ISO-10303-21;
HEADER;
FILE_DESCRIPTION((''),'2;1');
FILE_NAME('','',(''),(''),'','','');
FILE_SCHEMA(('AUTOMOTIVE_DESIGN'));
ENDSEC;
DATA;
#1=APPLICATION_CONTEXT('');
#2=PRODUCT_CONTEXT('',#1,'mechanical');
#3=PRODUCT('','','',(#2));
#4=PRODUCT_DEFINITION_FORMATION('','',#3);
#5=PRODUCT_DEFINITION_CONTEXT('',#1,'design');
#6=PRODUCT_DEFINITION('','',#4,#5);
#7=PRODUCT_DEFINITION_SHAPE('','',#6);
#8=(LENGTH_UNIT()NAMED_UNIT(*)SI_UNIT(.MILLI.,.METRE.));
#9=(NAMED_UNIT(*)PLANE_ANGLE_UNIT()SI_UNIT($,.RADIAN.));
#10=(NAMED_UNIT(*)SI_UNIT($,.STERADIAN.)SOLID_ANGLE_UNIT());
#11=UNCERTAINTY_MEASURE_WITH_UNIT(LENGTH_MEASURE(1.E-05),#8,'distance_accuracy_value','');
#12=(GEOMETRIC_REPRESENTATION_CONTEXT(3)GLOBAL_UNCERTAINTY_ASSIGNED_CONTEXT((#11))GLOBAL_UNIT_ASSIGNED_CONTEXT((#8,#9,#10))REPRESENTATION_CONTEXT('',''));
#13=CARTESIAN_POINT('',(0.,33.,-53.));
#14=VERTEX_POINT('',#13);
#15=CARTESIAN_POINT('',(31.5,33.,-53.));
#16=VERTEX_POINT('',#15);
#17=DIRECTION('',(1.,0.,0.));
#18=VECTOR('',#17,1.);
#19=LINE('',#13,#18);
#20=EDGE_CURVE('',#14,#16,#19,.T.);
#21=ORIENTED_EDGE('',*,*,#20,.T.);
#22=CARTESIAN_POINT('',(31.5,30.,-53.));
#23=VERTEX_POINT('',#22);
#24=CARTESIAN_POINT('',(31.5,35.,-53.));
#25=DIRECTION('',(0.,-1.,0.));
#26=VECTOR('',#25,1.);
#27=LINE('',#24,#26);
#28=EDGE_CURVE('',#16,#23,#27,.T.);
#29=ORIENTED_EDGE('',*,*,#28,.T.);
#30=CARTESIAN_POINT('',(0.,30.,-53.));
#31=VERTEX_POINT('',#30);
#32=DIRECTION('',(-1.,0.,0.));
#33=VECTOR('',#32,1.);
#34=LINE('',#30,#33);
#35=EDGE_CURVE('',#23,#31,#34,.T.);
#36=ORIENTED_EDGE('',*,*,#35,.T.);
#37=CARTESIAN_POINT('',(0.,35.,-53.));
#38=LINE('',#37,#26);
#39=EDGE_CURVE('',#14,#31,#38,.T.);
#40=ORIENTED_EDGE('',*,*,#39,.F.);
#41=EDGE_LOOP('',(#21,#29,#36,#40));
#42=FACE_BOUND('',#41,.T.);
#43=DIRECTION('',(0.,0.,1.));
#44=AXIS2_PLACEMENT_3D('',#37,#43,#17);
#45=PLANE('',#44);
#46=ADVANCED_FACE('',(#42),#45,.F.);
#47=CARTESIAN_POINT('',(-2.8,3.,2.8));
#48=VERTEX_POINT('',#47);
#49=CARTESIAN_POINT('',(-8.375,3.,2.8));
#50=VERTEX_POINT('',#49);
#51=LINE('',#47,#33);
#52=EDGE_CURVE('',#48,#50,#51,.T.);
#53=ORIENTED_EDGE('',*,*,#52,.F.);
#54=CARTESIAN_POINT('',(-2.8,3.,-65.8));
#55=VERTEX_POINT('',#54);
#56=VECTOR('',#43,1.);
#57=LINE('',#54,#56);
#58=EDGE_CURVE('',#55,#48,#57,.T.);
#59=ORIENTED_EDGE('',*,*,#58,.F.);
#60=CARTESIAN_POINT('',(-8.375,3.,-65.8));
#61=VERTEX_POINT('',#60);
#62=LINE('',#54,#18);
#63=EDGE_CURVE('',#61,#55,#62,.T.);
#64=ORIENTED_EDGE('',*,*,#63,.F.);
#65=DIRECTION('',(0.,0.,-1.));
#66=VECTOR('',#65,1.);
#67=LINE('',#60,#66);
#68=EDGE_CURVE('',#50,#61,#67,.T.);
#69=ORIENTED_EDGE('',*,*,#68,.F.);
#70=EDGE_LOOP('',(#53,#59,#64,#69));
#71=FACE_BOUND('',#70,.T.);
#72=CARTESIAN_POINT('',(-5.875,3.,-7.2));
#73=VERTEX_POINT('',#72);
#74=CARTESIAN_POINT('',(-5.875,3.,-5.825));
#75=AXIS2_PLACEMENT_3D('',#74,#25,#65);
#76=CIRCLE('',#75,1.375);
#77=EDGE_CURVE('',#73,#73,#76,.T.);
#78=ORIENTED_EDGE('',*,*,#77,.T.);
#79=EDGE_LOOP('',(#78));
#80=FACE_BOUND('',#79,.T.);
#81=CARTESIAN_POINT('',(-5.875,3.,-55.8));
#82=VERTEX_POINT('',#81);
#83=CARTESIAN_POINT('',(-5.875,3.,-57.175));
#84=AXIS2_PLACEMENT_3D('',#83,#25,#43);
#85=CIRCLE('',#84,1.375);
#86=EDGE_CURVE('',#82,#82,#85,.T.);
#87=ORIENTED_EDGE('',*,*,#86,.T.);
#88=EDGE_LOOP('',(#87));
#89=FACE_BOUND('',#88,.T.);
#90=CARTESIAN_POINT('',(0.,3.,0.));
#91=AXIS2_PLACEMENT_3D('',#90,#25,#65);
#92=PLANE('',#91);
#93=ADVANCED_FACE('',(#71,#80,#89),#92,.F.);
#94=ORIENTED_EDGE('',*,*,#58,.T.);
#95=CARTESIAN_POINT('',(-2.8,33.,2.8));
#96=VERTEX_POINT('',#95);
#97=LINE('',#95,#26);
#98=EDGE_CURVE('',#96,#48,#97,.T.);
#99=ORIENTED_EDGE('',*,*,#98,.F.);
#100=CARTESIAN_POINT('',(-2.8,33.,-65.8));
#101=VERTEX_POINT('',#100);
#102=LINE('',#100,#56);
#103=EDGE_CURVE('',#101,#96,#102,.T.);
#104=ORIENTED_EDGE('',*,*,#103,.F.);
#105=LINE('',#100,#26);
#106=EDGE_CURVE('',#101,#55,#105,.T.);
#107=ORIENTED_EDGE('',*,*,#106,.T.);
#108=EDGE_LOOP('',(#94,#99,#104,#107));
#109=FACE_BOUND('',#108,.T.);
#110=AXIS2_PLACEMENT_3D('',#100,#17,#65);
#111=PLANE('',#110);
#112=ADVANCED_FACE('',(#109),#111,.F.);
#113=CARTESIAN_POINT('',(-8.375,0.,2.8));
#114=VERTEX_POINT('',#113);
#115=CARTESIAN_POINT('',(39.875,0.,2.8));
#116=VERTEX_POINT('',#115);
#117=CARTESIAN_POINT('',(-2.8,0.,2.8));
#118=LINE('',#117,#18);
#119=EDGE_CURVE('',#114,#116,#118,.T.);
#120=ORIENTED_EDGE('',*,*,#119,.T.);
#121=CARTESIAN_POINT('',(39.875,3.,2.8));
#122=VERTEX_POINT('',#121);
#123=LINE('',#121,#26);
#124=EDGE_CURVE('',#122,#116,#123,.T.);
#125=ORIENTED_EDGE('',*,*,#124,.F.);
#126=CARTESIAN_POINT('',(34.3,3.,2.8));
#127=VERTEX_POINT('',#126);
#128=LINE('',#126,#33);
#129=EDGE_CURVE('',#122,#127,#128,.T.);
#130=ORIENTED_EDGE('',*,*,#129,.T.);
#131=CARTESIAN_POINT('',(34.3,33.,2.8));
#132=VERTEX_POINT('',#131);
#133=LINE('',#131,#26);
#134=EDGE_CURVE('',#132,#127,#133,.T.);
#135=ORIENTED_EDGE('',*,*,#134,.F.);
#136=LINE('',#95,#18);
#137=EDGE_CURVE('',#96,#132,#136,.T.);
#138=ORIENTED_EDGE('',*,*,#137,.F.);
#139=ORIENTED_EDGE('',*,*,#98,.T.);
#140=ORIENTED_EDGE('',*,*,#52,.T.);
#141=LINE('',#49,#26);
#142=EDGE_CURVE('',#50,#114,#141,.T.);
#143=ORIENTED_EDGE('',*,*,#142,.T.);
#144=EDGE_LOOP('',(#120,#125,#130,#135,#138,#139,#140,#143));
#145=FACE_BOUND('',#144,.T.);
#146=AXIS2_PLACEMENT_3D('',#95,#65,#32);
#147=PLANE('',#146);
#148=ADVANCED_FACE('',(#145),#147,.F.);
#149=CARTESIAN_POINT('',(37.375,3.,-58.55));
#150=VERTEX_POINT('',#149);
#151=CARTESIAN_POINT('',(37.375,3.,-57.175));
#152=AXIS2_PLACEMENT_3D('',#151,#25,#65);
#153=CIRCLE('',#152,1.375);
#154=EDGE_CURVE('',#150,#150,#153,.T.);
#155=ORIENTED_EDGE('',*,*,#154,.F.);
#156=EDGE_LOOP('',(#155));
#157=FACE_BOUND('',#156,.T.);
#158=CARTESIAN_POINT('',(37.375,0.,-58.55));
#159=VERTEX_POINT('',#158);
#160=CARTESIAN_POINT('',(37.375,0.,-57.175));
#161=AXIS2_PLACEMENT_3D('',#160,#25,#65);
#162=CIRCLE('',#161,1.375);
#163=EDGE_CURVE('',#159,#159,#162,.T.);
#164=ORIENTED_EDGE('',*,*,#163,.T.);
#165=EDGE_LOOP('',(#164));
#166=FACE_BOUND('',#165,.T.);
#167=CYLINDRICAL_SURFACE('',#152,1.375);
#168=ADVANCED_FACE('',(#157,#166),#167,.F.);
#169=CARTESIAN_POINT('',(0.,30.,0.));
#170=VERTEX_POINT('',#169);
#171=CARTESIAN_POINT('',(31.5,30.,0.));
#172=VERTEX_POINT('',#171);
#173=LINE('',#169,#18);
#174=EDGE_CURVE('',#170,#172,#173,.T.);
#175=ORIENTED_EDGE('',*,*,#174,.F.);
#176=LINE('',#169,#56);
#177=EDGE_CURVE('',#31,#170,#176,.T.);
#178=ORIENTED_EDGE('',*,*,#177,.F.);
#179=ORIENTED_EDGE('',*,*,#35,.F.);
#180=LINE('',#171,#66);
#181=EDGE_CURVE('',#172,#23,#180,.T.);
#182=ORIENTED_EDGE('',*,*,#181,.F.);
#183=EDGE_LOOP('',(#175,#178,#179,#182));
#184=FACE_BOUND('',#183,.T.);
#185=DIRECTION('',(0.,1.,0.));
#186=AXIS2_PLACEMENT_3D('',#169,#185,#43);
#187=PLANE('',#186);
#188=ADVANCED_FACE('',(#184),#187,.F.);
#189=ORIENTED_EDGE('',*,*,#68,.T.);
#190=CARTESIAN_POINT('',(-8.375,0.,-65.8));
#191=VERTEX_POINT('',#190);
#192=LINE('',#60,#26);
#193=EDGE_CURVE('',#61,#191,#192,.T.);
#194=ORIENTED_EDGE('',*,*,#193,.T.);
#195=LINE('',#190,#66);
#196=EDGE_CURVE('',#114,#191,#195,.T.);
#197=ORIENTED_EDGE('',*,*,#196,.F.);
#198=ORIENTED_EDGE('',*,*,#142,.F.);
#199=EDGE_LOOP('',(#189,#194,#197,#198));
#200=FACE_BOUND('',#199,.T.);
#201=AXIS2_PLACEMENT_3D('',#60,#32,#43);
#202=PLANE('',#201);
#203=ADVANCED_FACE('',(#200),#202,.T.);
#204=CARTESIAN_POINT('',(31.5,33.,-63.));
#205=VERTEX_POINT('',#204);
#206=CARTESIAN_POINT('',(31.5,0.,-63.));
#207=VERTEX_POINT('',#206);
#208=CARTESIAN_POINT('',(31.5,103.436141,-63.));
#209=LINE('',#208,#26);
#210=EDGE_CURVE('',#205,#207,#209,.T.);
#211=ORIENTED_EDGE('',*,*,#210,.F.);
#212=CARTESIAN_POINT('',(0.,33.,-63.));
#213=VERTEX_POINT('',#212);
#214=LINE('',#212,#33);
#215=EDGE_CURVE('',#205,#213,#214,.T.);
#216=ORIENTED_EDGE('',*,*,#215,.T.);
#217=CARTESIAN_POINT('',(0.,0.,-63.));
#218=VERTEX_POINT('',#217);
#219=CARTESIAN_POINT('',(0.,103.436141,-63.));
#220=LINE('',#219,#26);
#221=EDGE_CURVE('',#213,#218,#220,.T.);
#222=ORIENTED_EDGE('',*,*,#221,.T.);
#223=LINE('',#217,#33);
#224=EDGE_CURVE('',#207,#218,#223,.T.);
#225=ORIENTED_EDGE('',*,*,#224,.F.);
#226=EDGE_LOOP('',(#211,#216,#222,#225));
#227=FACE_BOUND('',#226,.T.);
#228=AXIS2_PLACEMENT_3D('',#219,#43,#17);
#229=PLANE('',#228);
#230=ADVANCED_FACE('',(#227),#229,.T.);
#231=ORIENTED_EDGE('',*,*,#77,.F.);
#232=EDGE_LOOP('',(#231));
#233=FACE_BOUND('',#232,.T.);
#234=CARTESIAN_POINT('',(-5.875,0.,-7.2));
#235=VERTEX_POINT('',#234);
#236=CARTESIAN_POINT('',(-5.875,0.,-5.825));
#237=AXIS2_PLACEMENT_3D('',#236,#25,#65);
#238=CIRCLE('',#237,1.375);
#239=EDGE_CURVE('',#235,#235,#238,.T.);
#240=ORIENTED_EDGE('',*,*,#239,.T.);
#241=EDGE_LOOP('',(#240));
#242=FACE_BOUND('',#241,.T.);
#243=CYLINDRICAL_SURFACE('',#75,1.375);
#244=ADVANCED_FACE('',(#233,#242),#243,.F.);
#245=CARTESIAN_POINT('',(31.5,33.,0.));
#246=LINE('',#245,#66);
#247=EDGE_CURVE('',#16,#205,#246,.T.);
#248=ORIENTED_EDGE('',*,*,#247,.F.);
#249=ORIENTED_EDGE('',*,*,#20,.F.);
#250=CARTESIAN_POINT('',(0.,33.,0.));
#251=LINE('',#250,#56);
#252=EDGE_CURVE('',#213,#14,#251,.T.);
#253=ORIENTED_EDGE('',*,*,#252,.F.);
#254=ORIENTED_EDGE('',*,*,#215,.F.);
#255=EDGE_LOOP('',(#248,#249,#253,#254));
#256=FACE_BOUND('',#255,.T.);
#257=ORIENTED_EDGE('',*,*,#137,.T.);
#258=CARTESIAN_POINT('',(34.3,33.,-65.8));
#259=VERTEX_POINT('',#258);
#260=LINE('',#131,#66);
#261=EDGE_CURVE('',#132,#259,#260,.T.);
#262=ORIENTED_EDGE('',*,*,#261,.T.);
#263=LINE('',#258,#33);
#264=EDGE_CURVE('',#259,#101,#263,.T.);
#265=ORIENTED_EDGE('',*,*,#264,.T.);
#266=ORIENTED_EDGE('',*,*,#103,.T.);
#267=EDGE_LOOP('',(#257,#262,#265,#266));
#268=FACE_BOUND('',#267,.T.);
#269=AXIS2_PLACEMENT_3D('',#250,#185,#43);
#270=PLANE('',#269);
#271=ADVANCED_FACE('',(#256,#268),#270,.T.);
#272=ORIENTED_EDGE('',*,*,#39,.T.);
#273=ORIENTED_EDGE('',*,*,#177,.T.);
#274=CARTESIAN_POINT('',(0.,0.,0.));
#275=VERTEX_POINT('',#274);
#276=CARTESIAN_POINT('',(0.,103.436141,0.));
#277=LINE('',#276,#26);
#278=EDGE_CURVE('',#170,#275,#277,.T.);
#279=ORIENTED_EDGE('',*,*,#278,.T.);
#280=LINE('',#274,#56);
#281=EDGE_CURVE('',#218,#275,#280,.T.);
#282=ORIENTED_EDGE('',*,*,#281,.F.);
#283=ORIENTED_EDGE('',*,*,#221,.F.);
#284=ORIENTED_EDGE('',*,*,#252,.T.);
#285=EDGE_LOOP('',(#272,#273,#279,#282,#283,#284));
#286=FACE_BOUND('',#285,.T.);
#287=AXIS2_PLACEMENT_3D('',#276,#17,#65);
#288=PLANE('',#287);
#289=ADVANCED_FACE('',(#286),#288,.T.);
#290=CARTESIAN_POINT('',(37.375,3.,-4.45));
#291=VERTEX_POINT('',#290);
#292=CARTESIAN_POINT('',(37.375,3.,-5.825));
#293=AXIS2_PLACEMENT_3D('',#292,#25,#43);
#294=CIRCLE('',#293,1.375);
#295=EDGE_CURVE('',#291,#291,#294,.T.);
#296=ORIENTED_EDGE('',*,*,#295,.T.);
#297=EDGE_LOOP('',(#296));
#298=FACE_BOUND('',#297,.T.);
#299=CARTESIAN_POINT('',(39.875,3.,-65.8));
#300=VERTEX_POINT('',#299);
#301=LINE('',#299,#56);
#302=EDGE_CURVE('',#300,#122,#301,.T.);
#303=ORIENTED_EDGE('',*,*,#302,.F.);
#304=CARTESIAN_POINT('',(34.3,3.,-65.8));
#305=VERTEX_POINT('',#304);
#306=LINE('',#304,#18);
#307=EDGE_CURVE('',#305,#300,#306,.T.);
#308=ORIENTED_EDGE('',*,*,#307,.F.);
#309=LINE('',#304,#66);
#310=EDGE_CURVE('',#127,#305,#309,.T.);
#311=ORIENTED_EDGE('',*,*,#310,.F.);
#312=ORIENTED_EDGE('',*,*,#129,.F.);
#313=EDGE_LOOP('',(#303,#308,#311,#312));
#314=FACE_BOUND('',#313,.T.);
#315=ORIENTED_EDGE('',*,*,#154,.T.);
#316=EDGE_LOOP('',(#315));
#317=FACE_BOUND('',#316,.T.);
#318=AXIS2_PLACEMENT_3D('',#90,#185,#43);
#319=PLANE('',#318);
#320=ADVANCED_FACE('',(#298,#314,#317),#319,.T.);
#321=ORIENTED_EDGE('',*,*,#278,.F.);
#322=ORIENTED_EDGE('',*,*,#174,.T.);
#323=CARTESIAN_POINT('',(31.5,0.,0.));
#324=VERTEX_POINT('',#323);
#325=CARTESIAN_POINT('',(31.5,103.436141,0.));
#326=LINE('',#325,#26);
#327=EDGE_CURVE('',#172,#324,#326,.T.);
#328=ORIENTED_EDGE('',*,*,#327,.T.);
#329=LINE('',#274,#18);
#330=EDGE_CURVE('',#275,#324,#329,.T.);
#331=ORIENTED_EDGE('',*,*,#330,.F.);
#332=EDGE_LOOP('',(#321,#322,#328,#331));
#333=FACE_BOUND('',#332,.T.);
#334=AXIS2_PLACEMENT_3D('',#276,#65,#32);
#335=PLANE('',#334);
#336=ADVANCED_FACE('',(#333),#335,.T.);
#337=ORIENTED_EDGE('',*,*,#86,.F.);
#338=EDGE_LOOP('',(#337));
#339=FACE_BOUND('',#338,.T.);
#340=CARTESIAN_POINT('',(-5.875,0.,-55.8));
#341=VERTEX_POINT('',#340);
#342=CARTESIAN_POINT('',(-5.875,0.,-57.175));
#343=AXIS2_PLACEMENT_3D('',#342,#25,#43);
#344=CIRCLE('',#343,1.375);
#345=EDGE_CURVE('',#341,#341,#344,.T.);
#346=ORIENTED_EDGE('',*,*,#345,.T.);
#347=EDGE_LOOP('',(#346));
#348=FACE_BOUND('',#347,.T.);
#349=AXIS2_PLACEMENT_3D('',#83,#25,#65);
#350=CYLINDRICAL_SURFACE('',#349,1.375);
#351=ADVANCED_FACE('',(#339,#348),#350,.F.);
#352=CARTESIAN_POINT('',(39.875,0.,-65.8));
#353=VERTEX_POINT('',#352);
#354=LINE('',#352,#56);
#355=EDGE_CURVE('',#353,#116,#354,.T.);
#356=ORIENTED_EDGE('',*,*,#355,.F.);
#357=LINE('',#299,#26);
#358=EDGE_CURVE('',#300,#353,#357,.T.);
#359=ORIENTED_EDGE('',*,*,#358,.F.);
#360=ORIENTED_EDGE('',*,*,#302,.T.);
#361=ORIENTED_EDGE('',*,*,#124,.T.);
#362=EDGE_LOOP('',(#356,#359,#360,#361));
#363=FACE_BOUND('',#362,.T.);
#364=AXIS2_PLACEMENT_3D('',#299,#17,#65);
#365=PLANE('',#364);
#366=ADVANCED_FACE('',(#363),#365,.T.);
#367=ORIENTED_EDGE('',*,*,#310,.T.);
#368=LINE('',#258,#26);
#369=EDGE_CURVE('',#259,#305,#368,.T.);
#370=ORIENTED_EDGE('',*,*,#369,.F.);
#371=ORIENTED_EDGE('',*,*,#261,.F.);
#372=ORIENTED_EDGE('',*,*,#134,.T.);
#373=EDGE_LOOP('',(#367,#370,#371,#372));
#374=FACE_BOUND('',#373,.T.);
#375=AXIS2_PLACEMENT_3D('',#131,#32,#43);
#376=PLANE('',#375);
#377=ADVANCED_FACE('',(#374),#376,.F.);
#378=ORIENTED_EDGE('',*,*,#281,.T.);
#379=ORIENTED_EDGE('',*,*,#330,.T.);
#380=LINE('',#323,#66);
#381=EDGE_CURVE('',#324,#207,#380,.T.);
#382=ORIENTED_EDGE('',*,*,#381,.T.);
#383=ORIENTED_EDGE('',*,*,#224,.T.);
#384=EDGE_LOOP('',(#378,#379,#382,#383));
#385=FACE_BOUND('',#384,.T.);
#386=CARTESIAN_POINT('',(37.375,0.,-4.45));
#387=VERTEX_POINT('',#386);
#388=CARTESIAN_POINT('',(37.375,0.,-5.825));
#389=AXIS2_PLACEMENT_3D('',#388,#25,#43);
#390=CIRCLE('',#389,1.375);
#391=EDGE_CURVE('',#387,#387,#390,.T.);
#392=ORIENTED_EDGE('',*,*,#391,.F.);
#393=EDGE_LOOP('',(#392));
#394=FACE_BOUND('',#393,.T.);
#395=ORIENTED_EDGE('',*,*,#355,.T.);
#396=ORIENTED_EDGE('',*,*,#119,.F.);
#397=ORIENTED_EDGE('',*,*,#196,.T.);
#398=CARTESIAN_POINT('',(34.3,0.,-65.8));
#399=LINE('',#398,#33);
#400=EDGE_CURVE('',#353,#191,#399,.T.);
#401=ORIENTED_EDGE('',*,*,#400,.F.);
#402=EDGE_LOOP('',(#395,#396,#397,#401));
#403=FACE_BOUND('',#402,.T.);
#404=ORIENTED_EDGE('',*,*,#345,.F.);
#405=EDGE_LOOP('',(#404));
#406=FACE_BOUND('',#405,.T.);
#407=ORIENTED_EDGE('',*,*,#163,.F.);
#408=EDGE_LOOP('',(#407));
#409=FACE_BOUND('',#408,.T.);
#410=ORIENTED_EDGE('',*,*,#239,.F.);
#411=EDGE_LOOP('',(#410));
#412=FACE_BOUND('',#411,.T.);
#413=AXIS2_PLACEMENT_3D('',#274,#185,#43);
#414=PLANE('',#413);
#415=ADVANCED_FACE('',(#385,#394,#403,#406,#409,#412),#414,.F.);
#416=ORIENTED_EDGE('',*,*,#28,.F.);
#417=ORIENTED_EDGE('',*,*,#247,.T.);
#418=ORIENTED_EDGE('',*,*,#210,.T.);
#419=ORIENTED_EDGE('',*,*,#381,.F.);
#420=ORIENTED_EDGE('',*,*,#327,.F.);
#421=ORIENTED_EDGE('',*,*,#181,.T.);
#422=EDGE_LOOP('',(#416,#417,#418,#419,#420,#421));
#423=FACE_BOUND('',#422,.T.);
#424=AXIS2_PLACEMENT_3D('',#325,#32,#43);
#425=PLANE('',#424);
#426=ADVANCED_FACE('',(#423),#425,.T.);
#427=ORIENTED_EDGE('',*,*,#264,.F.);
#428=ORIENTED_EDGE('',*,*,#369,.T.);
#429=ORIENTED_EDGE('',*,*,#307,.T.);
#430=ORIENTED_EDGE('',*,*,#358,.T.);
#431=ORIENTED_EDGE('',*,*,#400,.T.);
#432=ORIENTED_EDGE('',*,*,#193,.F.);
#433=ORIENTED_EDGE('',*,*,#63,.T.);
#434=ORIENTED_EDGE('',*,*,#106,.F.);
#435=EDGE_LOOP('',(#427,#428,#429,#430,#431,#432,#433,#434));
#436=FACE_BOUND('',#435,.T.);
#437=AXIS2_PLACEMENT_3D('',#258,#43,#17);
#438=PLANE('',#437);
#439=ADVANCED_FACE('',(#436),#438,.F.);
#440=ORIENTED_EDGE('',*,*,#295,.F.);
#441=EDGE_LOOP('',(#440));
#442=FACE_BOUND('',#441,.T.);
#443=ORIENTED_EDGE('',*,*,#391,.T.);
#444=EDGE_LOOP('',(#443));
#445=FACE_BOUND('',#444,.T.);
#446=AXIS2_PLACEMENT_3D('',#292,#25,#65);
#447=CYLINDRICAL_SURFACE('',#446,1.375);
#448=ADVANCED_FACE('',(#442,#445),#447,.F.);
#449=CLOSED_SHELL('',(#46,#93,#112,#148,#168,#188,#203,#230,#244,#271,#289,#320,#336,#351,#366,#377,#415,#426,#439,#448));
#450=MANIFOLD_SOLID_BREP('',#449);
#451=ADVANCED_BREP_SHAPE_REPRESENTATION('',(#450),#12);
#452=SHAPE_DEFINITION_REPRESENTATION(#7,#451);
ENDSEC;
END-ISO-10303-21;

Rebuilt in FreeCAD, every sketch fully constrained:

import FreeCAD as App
import Part
import Sketcher
from FreeCAD import Vector
Q = App.Units.Quantity


def add_polygon(sketch, points):
    """Adds a closed chain of lines whose ends are joined by coincident constraints."""
    first, n = sketch.GeometryCount, len(points)
    for a, b in zip(points, points[1:] + points[:1]):
        sketch.addGeometry(Part.LineSegment(App.Vector(*a, 0), App.Vector(*b, 0)), False)
    for i in range(n):
        sketch.addConstraint(Sketcher.Constraint("Coincident", first + i, 2, first + (i + 1) % n, 1))

doc = App.newDocument("Part")
body = doc.addObject("PartDesign::Body", "Body")

# Sketch on XZ plane
sketch1 = body.newObject("Sketcher::SketchObject", "Sketch")
sketch1.AttachmentSupport = (doc.getObject("XZ_Plane"), [""])
sketch1.MapMode = "FlatFace"
add_polygon(sketch1, [(-3, -66), (-3, 3), (34, 3), (34, -66)])  # lines 0-3
sketch1.addConstraint([
    Sketcher.Constraint("Vertical", 0),
    Sketcher.Constraint("Horizontal", 1),
    Sketcher.Constraint("Vertical", 2),
    Sketcher.Constraint("Horizontal", 3),
    Sketcher.Constraint("DistanceX", 1, 1, 1, 2, Q("37.1 mm")),
    Sketcher.Constraint("DistanceY", 0, 1, 0, 2, Q("68.6 mm")),
    Sketcher.Constraint("DistanceX", 0, 2, -1, 1, Q("2.8 mm")),
    Sketcher.Constraint("DistanceY", -1, 1, 0, 2, Q("2.8 mm")),
])
pad1 = body.newObject("PartDesign::Pad", "Pad")
pad1.Profile = sketch1
pad1.Length = 33
pad1.Reversed = True

# Sketch on XZ plane
sketch2 = body.newObject("Sketcher::SketchObject", "Sketch001")
sketch2.AttachmentSupport = (doc.getObject("XZ_Plane"), [""])
sketch2.MapMode = "FlatFace"
add_polygon(sketch2, [(0, -63), (0, 0), (32, 0), (32, -63)])  # lines 0-3
sketch2.addConstraint([
    Sketcher.Constraint("Vertical", 0),
    Sketcher.Constraint("Horizontal", 1),
    Sketcher.Constraint("Vertical", 2),
    Sketcher.Constraint("Horizontal", 3),
    Sketcher.Constraint("Coincident", 0, 2, -1, 1),
    Sketcher.Constraint("DistanceY", 0, 1, 0, 2, Q("63 mm")),
    Sketcher.Constraint("DistanceX", 1, 1, 1, 2, Q("31.5 mm")),
])
pocket1 = body.newObject("PartDesign::Pocket", "Pocket")
pocket1.Profile = sketch2
pocket1.Length = 30

# Sketch on XZ plane
sketch3 = body.newObject("Sketcher::SketchObject", "Sketch002")
sketch3.AttachmentSupport = (doc.getObject("XZ_Plane"), [""])
sketch3.MapMode = "FlatFace"
sketch3.AttachmentOffset = App.Placement(Vector(0, 0, -30), App.Rotation())
add_polygon(sketch3, [(0, -53), (0, -63), (32, -63), (32, -53)])  # lines 0-3
sketch3.addConstraint([
    Sketcher.Constraint("Vertical", 0),
    Sketcher.Constraint("Horizontal", 1),
    Sketcher.Constraint("Vertical", 2),
    Sketcher.Constraint("Horizontal", 3),
    Sketcher.Constraint("PointOnObject", 0, 2, -2),
    Sketcher.Constraint("DistanceY", 0, 2, 0, 1, Q("10 mm")),
    Sketcher.Constraint("DistanceX", 1, 1, 1, 2, Q("31.5 mm")),
    Sketcher.Constraint("DistanceY", 0, 2, -1, 1, Q("63 mm")),
])
pocket2 = body.newObject("PartDesign::Pocket", "Pocket001")
pocket2.Profile = sketch3
pocket2.Length = 5

# Sketch on XZ plane
sketch4 = body.newObject("Sketcher::SketchObject", "Sketch003")
sketch4.AttachmentSupport = (doc.getObject("XZ_Plane"), [""])
sketch4.MapMode = "FlatFace"
add_polygon(sketch4, [(34.3, 2.8), (34.3, -65.8), (39.9, -65.8), (39.9, 2.8)])  # lines 0-3
sketch4.addGeometry(Part.Circle(Vector(37.4, -57.2, 0), Vector(0, 0, 1), 1.4), False)  # 4
sketch4.addGeometry(Part.Circle(Vector(37.4, -5.8, 0), Vector(0, 0, 1), 1.4), False)  # 5
add_polygon(sketch4, [(-8.4, 2.8), (-8.4, -65.8), (-2.8, -65.8), (-2.8, 2.8)])  # lines 6-9
sketch4.addGeometry(Part.Circle(Vector(-5.9, -57.2, 0), Vector(0, 0, 1), 1.4), False)  # 10
sketch4.addGeometry(Part.Circle(Vector(-5.9, -5.8, 0), Vector(0, 0, 1), 1.4), False)  # 11
sketch4.addConstraint([
    Sketcher.Constraint("Vertical", 0),
    Sketcher.Constraint("Horizontal", 1),
    Sketcher.Constraint("Vertical", 2),
    Sketcher.Constraint("Horizontal", 3),
    Sketcher.Constraint("Vertical", 6),
    Sketcher.Constraint("Horizontal", 7),
    Sketcher.Constraint("Vertical", 8),
    Sketcher.Constraint("Horizontal", 9),
    Sketcher.Constraint("Equal", 4, 5),
    Sketcher.Constraint("Equal", 5, 10),
    Sketcher.Constraint("Equal", 10, 11),
    Sketcher.Constraint("Horizontal", 4, 3, 10, 3),
    Sketcher.Constraint("Horizontal", 5, 3, 11, 3),
    Sketcher.Constraint("Horizontal", 1, 2, 6, 2),
    Sketcher.Constraint("Horizontal", 3, 2, 8, 2),
    Sketcher.Constraint("Vertical", 4, 3, 5, 3),
    Sketcher.Constraint("Vertical", 10, 3, 11, 3),
    Sketcher.Constraint("Equal", 3, 7),
    Sketcher.Constraint("Diameter", 4, Q("2.75 mm")),
    Sketcher.Constraint("DistanceY", 0, 2, 0, 1, Q("68.6 mm")),
    Sketcher.Constraint("DistanceX", -1, 1, 0, 2, Q("34.3 mm")),
    Sketcher.Constraint("DistanceY", 0, 2, -1, 1, Q("65.8 mm")),
    Sketcher.Constraint("DistanceX", 7, 2, -1, 1, Q("2.8 mm")),
    Sketcher.Constraint("DistanceX", 4, 3, 1, 2, Q("2.5 mm")),
    Sketcher.Constraint("DistanceX", 6, 2, 10, 3, Q("2.5 mm")),
    Sketcher.Constraint("DistanceX", 1, 1, 1, 2, Q("5.575 mm")),
    Sketcher.Constraint("DistanceY", 4, 3, 5, 3, Q("51.35 mm")),
    Sketcher.Constraint("DistanceY", 4, 3, -1, 1, Q("57.175 mm")),
])
pad2 = body.newObject("PartDesign::Pad", "Pad001")
pad2.Profile = sketch4
pad2.Length = 3
pad2.Reversed = True

doc.recompute()
